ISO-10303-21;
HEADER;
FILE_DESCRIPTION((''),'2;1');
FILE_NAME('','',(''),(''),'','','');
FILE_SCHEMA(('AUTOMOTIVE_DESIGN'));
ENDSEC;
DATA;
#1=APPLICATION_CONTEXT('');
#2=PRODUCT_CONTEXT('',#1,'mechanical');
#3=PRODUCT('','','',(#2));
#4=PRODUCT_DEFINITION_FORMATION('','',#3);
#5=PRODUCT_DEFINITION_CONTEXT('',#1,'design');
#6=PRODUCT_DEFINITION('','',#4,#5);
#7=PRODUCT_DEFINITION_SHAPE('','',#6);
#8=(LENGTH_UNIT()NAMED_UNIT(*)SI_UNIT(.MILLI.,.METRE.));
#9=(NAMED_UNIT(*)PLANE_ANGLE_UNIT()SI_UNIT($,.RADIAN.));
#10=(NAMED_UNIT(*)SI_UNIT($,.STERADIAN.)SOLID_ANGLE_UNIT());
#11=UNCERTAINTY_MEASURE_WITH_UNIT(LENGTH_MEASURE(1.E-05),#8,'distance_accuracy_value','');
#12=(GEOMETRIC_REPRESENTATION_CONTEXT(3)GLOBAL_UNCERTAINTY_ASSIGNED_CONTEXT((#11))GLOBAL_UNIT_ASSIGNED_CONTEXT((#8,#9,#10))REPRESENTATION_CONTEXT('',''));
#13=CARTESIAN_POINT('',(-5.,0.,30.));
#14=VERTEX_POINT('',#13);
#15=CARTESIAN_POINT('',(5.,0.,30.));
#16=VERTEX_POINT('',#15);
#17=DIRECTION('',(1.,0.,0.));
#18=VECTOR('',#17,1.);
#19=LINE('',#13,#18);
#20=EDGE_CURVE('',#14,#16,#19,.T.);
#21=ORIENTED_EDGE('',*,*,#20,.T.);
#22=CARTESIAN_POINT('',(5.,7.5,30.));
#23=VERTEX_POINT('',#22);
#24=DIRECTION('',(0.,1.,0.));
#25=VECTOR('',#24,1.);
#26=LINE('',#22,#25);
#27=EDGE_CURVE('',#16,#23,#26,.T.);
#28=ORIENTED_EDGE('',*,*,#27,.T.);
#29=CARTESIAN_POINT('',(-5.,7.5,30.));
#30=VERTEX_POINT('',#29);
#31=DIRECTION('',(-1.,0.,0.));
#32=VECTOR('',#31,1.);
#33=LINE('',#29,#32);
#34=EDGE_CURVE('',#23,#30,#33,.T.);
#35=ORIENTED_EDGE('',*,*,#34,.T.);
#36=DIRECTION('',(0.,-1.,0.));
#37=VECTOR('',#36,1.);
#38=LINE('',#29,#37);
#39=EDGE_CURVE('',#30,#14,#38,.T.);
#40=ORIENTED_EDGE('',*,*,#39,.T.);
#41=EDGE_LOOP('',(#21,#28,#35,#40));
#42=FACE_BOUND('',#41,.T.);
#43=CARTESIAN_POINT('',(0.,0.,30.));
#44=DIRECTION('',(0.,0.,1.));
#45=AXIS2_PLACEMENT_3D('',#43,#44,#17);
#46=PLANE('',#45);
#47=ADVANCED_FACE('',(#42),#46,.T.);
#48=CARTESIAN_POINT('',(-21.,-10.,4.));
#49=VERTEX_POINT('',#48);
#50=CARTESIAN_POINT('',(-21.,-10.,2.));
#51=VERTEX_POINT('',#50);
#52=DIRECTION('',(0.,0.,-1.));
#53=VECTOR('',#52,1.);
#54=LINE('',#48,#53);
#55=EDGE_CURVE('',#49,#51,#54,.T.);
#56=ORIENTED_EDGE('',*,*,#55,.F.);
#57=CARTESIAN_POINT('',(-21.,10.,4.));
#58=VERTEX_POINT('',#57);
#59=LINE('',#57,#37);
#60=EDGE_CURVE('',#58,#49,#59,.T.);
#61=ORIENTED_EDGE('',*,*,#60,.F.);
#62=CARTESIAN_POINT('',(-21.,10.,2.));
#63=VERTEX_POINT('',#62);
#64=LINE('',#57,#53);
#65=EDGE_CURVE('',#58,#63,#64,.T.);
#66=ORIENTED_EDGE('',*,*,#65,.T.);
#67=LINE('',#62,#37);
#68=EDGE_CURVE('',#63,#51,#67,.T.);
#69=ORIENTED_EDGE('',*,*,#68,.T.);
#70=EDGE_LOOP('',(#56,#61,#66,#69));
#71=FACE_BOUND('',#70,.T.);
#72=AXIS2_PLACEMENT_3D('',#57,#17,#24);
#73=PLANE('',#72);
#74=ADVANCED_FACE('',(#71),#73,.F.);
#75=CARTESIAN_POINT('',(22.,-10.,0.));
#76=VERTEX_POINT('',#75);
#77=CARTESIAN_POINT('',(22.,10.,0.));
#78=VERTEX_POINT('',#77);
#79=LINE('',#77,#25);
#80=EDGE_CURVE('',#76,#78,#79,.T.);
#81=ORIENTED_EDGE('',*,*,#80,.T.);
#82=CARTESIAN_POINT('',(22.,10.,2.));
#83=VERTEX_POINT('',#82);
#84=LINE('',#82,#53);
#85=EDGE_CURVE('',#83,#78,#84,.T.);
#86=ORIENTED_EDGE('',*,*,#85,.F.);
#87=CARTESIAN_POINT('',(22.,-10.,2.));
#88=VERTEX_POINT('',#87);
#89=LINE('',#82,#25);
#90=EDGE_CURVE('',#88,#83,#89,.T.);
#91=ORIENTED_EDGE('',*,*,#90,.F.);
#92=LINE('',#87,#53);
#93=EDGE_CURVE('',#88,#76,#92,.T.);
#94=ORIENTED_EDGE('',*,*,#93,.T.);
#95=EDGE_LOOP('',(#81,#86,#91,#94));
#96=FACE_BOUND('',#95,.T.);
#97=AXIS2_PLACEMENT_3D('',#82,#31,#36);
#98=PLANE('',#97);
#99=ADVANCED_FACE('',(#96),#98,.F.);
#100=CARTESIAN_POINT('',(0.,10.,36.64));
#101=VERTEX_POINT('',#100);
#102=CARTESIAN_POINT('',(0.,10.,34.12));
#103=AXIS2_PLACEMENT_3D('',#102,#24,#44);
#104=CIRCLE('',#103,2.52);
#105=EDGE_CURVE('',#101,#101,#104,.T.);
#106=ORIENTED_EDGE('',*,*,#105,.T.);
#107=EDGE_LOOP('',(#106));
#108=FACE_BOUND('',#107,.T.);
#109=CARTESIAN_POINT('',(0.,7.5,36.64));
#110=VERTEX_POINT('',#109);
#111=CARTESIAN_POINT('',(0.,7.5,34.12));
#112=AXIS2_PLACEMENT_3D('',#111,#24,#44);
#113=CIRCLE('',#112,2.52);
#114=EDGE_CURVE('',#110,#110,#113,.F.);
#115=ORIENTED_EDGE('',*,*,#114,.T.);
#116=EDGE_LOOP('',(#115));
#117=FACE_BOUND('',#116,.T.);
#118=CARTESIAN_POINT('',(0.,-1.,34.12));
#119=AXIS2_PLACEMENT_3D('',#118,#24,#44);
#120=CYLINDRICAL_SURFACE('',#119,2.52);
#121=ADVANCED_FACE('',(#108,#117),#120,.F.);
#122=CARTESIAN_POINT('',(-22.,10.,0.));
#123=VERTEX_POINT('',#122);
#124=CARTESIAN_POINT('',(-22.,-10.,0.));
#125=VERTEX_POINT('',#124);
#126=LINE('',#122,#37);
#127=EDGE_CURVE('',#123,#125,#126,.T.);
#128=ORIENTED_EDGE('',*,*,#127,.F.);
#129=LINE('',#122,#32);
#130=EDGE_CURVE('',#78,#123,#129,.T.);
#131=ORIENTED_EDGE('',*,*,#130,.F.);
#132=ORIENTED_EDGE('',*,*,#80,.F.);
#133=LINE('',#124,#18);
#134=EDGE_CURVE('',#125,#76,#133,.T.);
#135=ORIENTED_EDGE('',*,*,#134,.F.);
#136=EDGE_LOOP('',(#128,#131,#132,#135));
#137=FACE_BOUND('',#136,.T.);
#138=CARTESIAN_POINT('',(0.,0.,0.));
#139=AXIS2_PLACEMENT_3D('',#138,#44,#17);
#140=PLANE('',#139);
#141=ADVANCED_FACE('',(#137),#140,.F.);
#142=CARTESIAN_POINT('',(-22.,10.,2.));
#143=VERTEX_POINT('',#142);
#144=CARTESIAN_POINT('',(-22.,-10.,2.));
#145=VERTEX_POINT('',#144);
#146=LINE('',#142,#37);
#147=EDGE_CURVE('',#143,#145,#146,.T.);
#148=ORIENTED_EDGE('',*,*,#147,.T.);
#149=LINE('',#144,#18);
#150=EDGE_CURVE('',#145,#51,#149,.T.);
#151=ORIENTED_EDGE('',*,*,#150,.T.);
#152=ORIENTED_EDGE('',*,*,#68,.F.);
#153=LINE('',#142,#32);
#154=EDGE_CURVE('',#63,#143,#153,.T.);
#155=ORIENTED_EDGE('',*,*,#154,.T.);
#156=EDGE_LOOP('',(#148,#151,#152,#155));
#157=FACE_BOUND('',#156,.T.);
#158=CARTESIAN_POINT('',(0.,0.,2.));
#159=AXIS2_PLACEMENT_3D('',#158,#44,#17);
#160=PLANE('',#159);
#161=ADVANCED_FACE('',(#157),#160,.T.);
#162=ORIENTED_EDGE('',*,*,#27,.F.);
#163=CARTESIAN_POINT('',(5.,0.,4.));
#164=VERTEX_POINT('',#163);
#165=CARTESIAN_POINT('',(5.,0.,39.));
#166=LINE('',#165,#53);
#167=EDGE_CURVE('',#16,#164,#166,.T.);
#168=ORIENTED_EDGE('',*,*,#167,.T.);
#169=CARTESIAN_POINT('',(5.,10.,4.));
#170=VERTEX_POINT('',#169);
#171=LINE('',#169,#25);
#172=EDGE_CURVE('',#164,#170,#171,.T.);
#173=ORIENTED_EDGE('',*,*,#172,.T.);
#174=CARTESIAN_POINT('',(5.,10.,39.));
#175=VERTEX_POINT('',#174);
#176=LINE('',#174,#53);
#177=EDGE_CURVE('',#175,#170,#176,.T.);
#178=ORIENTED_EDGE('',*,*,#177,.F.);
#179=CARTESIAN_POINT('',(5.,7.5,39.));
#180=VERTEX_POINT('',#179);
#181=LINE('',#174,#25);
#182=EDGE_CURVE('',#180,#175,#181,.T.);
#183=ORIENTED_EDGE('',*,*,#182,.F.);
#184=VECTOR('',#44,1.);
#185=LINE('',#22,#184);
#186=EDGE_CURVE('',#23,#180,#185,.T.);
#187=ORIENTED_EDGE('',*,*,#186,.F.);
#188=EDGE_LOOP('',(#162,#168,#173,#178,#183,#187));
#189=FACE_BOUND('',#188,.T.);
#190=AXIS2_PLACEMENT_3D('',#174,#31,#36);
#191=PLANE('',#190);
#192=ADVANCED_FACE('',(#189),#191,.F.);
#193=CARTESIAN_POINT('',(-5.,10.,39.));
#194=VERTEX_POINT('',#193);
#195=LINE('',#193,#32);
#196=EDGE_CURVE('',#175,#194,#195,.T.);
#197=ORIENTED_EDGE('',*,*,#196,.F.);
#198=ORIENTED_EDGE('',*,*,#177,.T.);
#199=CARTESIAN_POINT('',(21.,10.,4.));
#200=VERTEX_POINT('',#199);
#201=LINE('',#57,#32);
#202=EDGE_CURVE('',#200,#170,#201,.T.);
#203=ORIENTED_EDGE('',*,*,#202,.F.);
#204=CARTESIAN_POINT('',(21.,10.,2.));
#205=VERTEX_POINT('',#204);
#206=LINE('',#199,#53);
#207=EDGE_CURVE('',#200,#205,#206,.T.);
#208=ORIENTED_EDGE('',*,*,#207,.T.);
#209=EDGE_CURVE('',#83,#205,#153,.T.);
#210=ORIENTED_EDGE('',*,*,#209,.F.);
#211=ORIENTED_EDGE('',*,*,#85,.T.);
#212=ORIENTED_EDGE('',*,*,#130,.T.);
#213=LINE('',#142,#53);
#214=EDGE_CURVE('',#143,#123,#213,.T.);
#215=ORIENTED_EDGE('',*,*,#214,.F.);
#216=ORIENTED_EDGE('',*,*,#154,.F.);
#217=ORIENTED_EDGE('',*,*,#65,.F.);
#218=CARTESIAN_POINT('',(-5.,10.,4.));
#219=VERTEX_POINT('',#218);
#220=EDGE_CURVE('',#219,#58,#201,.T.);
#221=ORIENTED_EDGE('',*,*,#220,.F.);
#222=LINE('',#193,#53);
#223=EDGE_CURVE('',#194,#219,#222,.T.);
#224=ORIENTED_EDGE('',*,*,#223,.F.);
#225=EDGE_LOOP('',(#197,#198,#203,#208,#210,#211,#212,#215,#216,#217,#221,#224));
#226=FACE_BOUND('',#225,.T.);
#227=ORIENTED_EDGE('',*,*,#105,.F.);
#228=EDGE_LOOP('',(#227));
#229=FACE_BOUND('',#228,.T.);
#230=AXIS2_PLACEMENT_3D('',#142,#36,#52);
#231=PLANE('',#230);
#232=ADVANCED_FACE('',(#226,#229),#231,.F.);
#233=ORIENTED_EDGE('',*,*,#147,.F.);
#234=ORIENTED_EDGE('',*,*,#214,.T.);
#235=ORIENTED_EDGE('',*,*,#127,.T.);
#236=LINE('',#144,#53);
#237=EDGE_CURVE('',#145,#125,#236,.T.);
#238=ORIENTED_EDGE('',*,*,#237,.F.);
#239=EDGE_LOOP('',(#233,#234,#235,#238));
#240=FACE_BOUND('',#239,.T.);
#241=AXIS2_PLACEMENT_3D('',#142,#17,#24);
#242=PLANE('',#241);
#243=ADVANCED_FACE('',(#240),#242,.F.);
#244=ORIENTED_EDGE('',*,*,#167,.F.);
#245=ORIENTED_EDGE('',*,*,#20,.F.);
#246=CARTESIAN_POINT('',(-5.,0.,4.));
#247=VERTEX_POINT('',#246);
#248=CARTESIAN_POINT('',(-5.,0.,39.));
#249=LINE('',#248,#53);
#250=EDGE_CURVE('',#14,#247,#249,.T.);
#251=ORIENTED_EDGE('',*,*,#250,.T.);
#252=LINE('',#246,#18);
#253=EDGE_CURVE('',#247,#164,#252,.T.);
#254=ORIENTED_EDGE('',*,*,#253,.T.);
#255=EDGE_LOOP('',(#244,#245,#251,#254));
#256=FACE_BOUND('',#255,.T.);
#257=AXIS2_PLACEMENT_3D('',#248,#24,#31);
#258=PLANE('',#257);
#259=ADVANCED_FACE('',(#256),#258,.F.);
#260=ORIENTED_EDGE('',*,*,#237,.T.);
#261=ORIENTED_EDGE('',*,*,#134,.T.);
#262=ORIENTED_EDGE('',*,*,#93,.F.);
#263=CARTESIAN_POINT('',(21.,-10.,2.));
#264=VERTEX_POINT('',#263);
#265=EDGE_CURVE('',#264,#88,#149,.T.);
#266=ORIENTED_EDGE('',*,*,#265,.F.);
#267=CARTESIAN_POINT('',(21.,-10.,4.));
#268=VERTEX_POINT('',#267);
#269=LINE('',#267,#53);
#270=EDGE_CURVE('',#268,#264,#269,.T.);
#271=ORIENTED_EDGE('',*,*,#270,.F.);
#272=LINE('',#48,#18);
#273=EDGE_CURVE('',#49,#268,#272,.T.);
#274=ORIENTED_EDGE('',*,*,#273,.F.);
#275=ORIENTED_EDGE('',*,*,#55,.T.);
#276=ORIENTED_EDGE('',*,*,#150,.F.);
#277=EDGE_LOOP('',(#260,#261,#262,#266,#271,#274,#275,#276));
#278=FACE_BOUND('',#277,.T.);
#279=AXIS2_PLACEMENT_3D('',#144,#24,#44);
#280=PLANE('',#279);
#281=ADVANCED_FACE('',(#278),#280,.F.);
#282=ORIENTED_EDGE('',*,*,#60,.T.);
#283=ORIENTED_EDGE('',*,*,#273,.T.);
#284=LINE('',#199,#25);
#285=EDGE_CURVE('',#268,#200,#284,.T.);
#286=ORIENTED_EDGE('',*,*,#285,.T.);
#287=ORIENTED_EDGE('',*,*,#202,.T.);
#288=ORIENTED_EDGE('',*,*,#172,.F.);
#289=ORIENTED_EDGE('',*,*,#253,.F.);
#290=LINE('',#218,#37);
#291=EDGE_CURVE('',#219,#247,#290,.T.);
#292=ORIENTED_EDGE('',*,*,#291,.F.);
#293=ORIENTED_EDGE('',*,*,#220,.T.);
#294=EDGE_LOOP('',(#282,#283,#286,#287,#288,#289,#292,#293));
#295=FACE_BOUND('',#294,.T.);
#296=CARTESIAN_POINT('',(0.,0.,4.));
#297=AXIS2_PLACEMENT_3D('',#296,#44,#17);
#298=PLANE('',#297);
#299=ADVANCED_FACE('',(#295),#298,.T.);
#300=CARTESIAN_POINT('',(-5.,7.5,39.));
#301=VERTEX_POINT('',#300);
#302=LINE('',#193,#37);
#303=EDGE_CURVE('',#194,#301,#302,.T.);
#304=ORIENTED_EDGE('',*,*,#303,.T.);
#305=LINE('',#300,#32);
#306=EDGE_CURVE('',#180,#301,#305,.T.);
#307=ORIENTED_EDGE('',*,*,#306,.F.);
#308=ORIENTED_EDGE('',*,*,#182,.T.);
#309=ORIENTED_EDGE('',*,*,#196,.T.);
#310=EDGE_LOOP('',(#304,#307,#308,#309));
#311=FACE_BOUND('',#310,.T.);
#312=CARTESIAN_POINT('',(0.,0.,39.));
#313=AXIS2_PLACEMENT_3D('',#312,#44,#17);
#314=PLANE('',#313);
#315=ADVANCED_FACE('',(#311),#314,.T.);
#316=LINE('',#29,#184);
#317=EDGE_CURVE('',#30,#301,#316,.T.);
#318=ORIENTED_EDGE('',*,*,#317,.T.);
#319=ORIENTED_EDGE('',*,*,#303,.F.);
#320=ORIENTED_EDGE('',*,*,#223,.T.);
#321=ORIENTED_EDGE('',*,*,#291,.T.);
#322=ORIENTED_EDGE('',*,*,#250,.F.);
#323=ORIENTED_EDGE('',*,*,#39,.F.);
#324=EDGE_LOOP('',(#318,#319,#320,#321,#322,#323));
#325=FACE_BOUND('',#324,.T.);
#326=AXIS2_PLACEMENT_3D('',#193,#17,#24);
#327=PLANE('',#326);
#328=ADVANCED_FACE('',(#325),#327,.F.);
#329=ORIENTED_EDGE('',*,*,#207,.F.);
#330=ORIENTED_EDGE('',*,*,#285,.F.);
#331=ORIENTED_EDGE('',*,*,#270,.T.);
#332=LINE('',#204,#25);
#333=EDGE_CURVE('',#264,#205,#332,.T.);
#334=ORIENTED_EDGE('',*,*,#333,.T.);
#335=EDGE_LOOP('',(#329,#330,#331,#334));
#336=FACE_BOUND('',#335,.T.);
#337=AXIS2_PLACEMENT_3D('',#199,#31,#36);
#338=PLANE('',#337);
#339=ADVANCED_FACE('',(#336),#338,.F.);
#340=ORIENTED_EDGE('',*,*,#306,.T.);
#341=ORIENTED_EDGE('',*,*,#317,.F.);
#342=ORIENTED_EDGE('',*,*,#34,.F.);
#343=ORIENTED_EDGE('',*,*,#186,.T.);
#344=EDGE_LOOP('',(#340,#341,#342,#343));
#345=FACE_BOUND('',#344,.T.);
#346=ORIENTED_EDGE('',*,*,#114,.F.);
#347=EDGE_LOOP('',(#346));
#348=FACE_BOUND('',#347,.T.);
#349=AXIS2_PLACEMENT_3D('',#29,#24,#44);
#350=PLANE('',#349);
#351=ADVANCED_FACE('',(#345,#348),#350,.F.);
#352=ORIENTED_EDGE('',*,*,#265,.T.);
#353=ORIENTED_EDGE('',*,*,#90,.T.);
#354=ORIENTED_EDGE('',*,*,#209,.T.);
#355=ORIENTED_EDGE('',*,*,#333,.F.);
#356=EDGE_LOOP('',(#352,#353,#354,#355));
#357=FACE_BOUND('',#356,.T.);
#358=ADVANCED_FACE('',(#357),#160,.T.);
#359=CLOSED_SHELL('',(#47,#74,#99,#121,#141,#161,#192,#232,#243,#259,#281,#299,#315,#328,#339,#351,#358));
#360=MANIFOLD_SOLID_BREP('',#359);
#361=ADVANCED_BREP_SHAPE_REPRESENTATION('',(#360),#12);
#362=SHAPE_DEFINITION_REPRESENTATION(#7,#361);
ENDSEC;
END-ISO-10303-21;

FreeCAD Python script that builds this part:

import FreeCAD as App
import Part
import Sketcher

V = App.Vector


def add_polygon(sketch, points):
    """Adds a closed chain of lines whose ends are joined by coincident constraints."""
    first, n = sketch.GeometryCount, len(points)
    for a, b in zip(points, points[1:] + points[:1]):
        sketch.addGeometry(Part.LineSegment(App.Vector(*a, 0), App.Vector(*b, 0)), False)
    for i in range(n):
        sketch.addConstraint(Sketcher.Constraint("Coincident", first + i, 2, first + (i + 1) % n, 1))

doc = App.newDocument("Part")
body = doc.addObject("PartDesign::Body", "Body")

# Sketch on XY plane
sketch1 = doc.addObject("Sketcher::SketchObject", "Sketch")
body.addObject(sketch1)
sketch1.AttachmentSupport = (doc.XY_Plane, [""])
sketch1.MapMode = "FlatFace"
add_polygon(sketch1, [(-22, 10), (-22, -10), (22, -10), (22, 10)])  # lines 0-3
sketch1.addConstraint(Sketcher.Constraint("Vertical", 0))
sketch1.addConstraint(Sketcher.Constraint("Horizontal", 1))
sketch1.addConstraint(Sketcher.Constraint("Vertical", 2))
sketch1.addConstraint(Sketcher.Constraint("Horizontal", 3))
sketch1.addConstraint(Sketcher.Constraint("Symmetric", 0, 2, 2, 2, -1, 1))
sketch1.addConstraint(Sketcher.Constraint("DistanceX", 1, 1, 1, 2, 44.0))
sketch1.addConstraint(Sketcher.Constraint("DistanceY", 0, 2, 0, 1, 20.0))
pad1 = doc.addObject("PartDesign::Pad", "Pad")
body.addObject(pad1)
pad1.Profile = sketch1
pad1.Length = 2

# Sketch on XY plane
sketch2 = doc.addObject("Sketcher::SketchObject", "Sketch001")
body.addObject(sketch2)
sketch2.AttachmentSupport = (doc.XY_Plane, [""])
sketch2.MapMode = "FlatFace"
sketch2.AttachmentOffset = App.Placement(V(0, 0, 2), App.Rotation())
add_polygon(sketch2, [(-21, 10), (-21, -10), (21, -10), (21, 10)])  # lines 0-3
sketch2.addConstraint(Sketcher.Constraint("Vertical", 0))
sketch2.addConstraint(Sketcher.Constraint("Horizontal", 1))
sketch2.addConstraint(Sketcher.Constraint("Vertical", 2))
sketch2.addConstraint(Sketcher.Constraint("Horizontal", 3))
sketch2.addConstraint(Sketcher.Constraint("Symmetric", 0, 2, 2, 2, -1, 1))
sketch2.addConstraint(Sketcher.Constraint("DistanceX", 1, 1, 1, 2, 42.0))
sketch2.addConstraint(Sketcher.Constraint("DistanceY", 0, 2, 0, 1, 20.0))
pad2 = doc.addObject("PartDesign::Pad", "Pad001")
body.addObject(pad2)
pad2.Profile = sketch2
pad2.Length = 2

# Sketch on XY plane
sketch3 = doc.addObject("Sketcher::SketchObject", "Sketch002")
body.addObject(sketch3)
sketch3.AttachmentSupport = (doc.XY_Plane, [""])
sketch3.MapMode = "FlatFace"
sketch3.AttachmentOffset = App.Placement(V(0, 0, 4), App.Rotation())
add_polygon(sketch3, [(-5, 10), (-5, 0), (5, 0), (5, 10)])  # lines 0-3
sketch3.addConstraint(Sketcher.Constraint("Vertical", 0))
sketch3.addConstraint(Sketcher.Constraint("Horizontal", 1))
sketch3.addConstraint(Sketcher.Constraint("Vertical", 2))
sketch3.addConstraint(Sketcher.Constraint("Horizontal", 3))
sketch3.addConstraint(Sketcher.Constraint("Symmetric", 0, 2, 1, 2, -1, 1))
sketch3.addConstraint(Sketcher.Constraint("Equal", 3, 0))
sketch3.addConstraint(Sketcher.Constraint("DistanceX", 1, 1, 1, 2, 10.0))
pad3 = doc.addObject("PartDesign::Pad", "Pad002")
body.addObject(pad3)
pad3.Profile = sketch3
pad3.Length = 35

# Sketch on XZ plane
sketch4 = doc.addObject("Sketcher::SketchObject", "Sketch003")
body.addObject(sketch4)
sketch4.AttachmentSupport = (doc.XZ_Plane, [""])
sketch4.MapMode = "FlatFace"
sketch4.AttachmentOffset = App.Placement(V(0, 0, -10), App.Rotation())
sketch4.addGeometry(Part.Circle(V(0, 34.12, 0), V(0, 0, 1), 2.52), False)
sketch4.addConstraint(Sketcher.Constraint("PointOnObject", 0, 3, -2))
sketch4.addConstraint(Sketcher.Constraint("Diameter", 0, 5.04))
sketch4.addConstraint(Sketcher.Constraint("DistanceY", -1, 1, 0, 3, 34.12))
pocket1 = doc.addObject("PartDesign::Pocket", "Pocket")
body.addObject(pocket1)
pocket1.Profile = sketch4
pocket1.Length = 11
pocket1.Reversed = True

# Sketch on XY plane
sketch5 = doc.addObject("Sketcher::SketchObject", "Sketch004")
body.addObject(sketch5)
sketch5.AttachmentSupport = (doc.XY_Plane, [""])
sketch5.MapMode = "FlatFace"
sketch5.AttachmentOffset = App.Placement(V(0, 0, 39), App.Rotation())
add_polygon(sketch5, [(-5, 7.5), (-5, 0), (5, 0), (5, 7.5)])  # lines 0-3
sketch5.addConstraint(Sketcher.Constraint("Vertical", 0))
sketch5.addConstraint(Sketcher.Constraint("Horizontal", 1))
sketch5.addConstraint(Sketcher.Constraint("Vertical", 2))
sketch5.addConstraint(Sketcher.Constraint("Horizontal", 3))
sketch5.addConstraint(Sketcher.Constraint("Symmetric", 0, 2, 1, 2, -1, 1))
sketch5.addConstraint(Sketcher.Constraint("DistanceX", 1, 1, 1, 2, 10.0))
sketch5.addConstraint(Sketcher.Constraint("DistanceY", 0, 2, 0, 1, 7.5))
pocket2 = doc.addObject("PartDesign::Pocket", "Pocket001")
body.addObject(pocket2)
pocket2.Profile = sketch5
pocket2.Length = 9

doc.recompute()
